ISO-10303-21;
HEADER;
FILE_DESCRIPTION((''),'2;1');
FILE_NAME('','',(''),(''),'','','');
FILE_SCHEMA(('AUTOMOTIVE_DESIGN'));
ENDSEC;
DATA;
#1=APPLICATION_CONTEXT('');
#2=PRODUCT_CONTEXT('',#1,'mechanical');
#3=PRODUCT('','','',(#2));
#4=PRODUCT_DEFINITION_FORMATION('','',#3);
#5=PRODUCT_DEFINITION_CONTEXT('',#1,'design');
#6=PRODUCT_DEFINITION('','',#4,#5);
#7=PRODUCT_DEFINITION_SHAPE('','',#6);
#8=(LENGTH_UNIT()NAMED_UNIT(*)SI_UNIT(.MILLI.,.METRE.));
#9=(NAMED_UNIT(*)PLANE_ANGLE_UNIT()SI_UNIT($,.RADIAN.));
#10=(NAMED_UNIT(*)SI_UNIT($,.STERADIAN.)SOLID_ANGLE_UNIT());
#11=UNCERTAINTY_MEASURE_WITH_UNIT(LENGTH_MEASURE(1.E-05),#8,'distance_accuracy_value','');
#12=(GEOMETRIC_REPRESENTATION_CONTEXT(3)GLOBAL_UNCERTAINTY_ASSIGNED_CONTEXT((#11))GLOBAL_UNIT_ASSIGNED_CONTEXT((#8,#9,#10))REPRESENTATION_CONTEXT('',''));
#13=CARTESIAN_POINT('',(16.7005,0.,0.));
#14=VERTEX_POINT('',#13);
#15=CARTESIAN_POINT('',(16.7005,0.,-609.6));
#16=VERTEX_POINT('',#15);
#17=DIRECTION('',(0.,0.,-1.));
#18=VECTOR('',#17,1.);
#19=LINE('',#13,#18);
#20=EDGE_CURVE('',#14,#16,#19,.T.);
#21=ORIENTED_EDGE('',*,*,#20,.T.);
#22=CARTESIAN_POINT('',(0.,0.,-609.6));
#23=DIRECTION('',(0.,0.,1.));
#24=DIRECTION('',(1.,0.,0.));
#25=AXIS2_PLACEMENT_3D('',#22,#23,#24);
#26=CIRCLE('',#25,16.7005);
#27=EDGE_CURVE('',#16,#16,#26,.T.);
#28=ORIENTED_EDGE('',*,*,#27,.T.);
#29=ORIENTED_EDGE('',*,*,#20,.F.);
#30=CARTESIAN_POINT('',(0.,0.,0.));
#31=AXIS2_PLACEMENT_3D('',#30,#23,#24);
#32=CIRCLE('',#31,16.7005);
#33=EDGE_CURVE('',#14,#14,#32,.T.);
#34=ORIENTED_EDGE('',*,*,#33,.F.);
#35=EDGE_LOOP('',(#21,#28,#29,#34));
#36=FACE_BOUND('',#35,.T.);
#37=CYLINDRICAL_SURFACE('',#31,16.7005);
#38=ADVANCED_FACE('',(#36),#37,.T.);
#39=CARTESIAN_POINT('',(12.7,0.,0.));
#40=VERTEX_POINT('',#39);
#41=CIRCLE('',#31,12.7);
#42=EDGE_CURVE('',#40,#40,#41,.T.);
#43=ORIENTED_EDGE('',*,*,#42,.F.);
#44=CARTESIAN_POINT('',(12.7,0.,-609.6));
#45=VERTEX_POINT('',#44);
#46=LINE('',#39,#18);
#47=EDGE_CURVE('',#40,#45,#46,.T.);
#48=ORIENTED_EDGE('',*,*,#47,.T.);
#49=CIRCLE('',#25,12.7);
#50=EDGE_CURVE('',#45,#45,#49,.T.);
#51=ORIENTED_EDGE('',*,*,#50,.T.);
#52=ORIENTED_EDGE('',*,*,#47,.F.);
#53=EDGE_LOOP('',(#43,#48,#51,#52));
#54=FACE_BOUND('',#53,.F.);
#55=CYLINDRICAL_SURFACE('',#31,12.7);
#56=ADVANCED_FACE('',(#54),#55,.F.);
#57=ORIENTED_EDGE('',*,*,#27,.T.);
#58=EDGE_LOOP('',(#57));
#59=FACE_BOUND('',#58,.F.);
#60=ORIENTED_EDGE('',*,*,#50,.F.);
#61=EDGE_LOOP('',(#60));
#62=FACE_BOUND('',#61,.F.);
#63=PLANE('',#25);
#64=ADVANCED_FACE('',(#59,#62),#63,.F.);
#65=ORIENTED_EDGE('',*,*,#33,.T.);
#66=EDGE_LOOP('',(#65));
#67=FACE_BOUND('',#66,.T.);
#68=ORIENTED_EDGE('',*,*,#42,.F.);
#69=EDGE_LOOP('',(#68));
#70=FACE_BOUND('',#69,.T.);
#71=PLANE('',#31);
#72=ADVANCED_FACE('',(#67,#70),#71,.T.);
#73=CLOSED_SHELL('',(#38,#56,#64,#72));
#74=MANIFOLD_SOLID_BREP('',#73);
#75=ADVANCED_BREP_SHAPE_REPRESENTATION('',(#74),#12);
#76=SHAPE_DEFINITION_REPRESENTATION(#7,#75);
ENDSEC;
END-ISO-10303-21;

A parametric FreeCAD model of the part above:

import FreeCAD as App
import Part
import Sketcher

V = App.Vector
Q = App.Units.Quantity

doc = App.newDocument("Part")
body = doc.addObject("PartDesign::Body", "Body")

# Sketch on XY plane
sketch1 = body.newObject("Sketcher::SketchObject", "Sketch")
sketch1.AttachmentSupport = (doc.getObject("XY_Plane"), [""])
sketch1.MapMode = "FlatFace"
sketch1.addGeometry([
    Part.Circle(V(0, 0, 0), V(0, 0, 1), 17),
    Part.Circle(V(0, 0, 0), V(0, 0, 1), 13),
], False)
sketch1.addConstraint([
    Sketcher.Constraint("Coincident", 0, 3, -1, 1),
    Sketcher.Constraint("Coincident", 1, 3, -1, 1),
    Sketcher.Constraint("Diameter", 1, Q("1 in")),
    Sketcher.Constraint("Diameter", 0, Q("1.315 in")),
])
pad1 = body.newObject("PartDesign::Pad", "Pad")
pad1.Profile = sketch1
pad1.Length = Q("24 in")
pad1.Reversed = True

doc.recompute()
